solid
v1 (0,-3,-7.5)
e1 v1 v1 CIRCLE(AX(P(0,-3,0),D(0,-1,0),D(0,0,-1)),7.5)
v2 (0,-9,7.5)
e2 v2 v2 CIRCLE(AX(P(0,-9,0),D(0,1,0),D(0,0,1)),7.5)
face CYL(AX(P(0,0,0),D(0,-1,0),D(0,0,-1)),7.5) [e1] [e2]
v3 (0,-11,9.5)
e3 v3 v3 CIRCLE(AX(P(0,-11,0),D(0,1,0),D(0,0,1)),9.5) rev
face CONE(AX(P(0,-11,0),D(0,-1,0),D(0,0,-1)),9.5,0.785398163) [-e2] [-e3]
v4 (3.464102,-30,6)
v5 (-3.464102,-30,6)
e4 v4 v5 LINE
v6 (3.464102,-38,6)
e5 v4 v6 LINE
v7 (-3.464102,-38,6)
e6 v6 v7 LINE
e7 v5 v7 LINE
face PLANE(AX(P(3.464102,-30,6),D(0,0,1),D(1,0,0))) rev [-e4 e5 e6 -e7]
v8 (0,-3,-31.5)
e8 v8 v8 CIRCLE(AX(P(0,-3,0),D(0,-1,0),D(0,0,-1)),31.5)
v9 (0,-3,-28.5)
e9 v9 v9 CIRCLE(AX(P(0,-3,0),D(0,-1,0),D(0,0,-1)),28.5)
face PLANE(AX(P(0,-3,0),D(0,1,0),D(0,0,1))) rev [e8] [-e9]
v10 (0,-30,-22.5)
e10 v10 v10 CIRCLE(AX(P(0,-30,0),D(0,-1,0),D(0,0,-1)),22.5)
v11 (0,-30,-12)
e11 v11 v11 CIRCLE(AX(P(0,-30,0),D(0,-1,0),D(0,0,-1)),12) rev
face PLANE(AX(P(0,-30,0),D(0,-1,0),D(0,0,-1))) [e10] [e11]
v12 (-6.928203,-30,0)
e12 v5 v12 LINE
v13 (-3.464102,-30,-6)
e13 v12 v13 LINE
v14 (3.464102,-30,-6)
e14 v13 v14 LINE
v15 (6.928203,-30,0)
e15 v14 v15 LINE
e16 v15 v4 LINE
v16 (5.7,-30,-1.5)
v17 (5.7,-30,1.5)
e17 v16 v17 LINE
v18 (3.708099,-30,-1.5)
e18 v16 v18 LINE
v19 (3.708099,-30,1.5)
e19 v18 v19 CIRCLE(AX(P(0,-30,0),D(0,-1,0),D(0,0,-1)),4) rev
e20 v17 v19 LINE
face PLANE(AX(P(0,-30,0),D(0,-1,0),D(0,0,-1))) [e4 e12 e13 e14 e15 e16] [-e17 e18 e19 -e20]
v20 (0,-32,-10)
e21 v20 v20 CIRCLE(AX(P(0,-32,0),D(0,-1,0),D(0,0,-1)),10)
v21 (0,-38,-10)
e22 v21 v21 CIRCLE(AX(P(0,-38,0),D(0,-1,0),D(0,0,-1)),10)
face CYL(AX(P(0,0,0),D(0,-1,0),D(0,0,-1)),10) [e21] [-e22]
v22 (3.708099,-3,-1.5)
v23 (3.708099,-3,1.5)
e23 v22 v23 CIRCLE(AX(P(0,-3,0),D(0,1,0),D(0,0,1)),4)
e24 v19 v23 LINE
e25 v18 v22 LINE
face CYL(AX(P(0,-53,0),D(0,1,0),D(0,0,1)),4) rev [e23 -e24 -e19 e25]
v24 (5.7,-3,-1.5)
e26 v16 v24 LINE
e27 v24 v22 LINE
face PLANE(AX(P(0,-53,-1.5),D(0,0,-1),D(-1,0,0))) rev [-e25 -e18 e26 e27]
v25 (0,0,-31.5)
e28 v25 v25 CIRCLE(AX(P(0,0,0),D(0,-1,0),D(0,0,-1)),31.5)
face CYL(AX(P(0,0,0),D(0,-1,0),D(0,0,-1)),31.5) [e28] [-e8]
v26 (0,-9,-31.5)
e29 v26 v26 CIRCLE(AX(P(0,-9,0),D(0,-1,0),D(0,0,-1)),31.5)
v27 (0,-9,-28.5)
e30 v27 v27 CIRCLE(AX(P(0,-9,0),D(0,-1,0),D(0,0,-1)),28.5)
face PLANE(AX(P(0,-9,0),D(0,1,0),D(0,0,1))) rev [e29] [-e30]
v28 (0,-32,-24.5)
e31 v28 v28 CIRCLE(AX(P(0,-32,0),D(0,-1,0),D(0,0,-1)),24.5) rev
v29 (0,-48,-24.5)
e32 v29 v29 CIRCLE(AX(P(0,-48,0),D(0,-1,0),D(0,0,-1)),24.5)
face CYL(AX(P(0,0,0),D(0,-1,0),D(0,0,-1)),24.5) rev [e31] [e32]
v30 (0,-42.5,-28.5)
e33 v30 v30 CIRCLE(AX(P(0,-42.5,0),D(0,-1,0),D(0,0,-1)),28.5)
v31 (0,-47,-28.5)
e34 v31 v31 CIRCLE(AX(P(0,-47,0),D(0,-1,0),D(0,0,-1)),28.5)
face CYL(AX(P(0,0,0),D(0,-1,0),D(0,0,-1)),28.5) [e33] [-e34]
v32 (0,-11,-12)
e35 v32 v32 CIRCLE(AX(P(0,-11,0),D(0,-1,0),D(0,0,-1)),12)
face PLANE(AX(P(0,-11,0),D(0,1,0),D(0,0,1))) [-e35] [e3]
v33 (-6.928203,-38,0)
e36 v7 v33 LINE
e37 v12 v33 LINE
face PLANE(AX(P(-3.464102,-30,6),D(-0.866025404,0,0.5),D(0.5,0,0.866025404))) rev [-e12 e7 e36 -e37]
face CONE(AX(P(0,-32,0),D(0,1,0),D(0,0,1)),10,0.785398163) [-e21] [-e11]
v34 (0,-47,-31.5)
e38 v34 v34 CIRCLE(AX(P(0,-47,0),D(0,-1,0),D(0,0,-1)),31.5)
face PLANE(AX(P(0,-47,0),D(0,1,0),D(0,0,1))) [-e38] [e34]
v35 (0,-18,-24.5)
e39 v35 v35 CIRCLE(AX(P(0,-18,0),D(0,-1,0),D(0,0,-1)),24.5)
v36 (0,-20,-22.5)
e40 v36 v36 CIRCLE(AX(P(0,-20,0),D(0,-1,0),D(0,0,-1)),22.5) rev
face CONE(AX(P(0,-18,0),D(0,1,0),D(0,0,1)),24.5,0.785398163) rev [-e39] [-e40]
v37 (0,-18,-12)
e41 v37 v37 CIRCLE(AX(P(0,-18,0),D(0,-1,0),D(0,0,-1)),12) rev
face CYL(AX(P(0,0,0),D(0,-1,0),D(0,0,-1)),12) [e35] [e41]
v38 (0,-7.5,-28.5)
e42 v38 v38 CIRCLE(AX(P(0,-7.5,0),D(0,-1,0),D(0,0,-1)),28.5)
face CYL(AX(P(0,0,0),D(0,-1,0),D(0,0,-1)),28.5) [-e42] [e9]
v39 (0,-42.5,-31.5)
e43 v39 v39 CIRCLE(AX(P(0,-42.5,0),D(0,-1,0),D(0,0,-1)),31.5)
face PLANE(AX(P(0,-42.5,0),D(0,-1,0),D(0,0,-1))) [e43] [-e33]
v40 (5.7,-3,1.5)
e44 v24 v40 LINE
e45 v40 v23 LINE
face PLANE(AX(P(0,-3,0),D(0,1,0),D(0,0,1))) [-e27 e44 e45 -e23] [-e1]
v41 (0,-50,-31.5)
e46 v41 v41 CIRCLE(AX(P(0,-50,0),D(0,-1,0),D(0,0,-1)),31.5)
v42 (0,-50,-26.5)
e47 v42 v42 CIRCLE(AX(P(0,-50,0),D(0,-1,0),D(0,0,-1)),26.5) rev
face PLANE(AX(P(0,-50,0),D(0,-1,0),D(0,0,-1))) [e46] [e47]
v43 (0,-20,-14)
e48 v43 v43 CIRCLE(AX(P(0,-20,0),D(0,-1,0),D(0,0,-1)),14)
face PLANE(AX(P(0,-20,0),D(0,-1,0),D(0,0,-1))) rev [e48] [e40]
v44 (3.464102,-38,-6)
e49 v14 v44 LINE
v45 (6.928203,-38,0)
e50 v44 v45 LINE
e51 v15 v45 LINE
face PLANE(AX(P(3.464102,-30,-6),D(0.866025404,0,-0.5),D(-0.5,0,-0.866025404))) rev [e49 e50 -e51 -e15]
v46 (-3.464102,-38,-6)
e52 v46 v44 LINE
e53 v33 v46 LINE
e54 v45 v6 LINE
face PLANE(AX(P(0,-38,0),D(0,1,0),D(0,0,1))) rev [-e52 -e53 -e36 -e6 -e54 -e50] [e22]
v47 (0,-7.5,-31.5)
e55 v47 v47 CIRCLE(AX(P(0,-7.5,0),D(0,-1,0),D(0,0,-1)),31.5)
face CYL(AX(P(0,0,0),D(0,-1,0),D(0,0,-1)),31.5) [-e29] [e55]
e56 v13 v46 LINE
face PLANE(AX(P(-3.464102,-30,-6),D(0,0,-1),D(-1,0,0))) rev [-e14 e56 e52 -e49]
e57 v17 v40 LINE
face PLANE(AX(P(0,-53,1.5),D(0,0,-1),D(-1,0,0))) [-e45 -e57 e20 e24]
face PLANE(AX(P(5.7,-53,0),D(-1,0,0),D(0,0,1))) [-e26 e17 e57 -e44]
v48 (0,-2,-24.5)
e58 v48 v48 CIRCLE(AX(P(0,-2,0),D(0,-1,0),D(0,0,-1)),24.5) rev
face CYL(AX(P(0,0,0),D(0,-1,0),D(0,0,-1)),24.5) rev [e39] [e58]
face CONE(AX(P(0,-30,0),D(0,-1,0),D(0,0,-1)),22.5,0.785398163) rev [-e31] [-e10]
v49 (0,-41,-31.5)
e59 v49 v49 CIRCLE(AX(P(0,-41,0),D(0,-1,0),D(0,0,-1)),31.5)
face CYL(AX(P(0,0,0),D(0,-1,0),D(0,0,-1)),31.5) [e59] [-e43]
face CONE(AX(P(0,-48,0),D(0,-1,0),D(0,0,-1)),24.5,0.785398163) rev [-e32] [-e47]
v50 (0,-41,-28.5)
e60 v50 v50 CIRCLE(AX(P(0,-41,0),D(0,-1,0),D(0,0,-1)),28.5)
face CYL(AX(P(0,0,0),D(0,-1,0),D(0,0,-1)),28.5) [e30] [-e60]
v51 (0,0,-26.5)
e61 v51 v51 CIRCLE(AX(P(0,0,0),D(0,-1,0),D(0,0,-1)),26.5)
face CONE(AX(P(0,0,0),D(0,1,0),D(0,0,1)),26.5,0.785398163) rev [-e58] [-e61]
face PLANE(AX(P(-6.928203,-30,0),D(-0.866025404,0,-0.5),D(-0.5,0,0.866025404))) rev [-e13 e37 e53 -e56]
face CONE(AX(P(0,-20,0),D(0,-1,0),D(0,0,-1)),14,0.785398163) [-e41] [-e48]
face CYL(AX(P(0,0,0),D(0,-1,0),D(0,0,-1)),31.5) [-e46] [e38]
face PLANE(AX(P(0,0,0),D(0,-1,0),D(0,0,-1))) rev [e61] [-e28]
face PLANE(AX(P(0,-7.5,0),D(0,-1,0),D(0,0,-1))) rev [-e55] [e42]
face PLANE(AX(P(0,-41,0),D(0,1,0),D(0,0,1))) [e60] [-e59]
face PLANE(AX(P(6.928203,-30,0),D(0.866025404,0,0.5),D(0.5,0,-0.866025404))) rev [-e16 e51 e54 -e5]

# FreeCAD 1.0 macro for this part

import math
import FreeCAD as App
import Part
import Sketcher
from FreeCAD import Vector
Q = App.Units.Quantity


def edges_at(feature, points):
    """Names of the edges that pass closest to the given points."""
    edges = feature.Shape.Edges
    near = lambda p: min(range(len(edges)), key=lambda i: edges[i].distToShape(Part.Vertex(*p))[0])
    return sorted({f"Edge{near(p) + 1}" for p in points})


def add_polygon(sketch, points):
    """Adds a closed chain of lines whose ends are joined by coincident constraints."""
    first, n = sketch.GeometryCount, len(points)
    for a, b in zip(points, points[1:] + points[:1]):
        sketch.addGeometry(Part.LineSegment(App.Vector(*a, 0), App.Vector(*b, 0)), False)
    for i in range(n):
        sketch.addConstraint(Sketcher.Constraint("Coincident", first + i, 2, first + (i + 1) % n, 1))

doc = App.newDocument("Part")
body = doc.addObject("PartDesign::Body", "Body")

# Sketch on XY plane
sketch1 = body.newObject("Sketcher::SketchObject", "Sketch")
sketch1.AttachmentSupport = (doc.getObject("XY_Plane"), [""])
sketch1.MapMode = "FlatFace"
add_polygon(sketch1, [(7.5, -3), (0, -3), (0, -38), (10, -38), (10, -30), (24.5, -30), (24.5, -50), (31.5, -50), (31.5, -47), (28.5, -47), (28.5, -42.5), (31.5, -42.5), (31.5, -41), (28.5, -41), (28.5, -9), (31.5, -9), (31.5, -7.5), (28.5, -7.5), (28.5, -3), (31.5, -3), (31.5, 0), (24.5, 0), (24.5, -20), (12, -20), (12, -11), (7.5, -11)])  # lines 0-25
sketch1.addConstraint([
    Sketcher.Constraint("Horizontal", 0),
    Sketcher.Constraint("Vertical", 1),
    Sketcher.Constraint("Horizontal", 2),
    Sketcher.Constraint("Vertical", 3),
    Sketcher.Constraint("Horizontal", 4),
    Sketcher.Constraint("Vertical", 5),
    Sketcher.Constraint("Horizontal", 6),
    Sketcher.Constraint("Vertical", 7),
    Sketcher.Constraint("Horizontal", 8),
    Sketcher.Constraint("Vertical", 9),
    Sketcher.Constraint("Horizontal", 10),
    Sketcher.Constraint("Vertical", 11),
    Sketcher.Constraint("Horizontal", 12),
    Sketcher.Constraint("Vertical", 13),
    Sketcher.Constraint("Horizontal", 14),
    Sketcher.Constraint("Vertical", 15),
    Sketcher.Constraint("Horizontal", 16),
    Sketcher.Constraint("Vertical", 17),
    Sketcher.Constraint("Horizontal", 18),
    Sketcher.Constraint("Vertical", 19),
    Sketcher.Constraint("Horizontal", 20),
    Sketcher.Constraint("Vertical", 21),
    Sketcher.Constraint("Horizontal", 22),
    Sketcher.Constraint("Vertical", 23),
    Sketcher.Constraint("Horizontal", 24),
    Sketcher.Constraint("Vertical", 25),
    Sketcher.Constraint("PointOnObject", 0, 2, -2),
    Sketcher.Constraint("PointOnObject", 19, 2, -1),
    Sketcher.Constraint("Horizontal", 0, 2, 17, 2),
    Sketcher.Constraint("Vertical", 7, 2, 10, 2),
    Sketcher.Constraint("Vertical", 9, 2, 12, 2),
    Sketcher.Constraint("Vertical", 11, 2, 14, 2),
    Sketcher.Constraint("Vertical", 13, 2, 16, 2),
    Sketcher.Constraint("Vertical", 15, 2, 18, 2),
    Sketcher.Constraint("Vertical", 5, 2, 20, 2),
    Sketcher.Constraint("Equal", 18, 7),
    Sketcher.Constraint("Equal", 24, 9),
    Sketcher.Constraint("Equal", 11, 15),
    Sketcher.Constraint("Equal", 9, 17),
    Sketcher.Constraint("Equal", 7, 19),
    Sketcher.Constraint("Equal", 5, 21),
    Sketcher.Constraint("Equal", 3, 25),
    Sketcher.Constraint("DistanceX", 2, 1, 2, 2, 10.0),
    Sketcher.Constraint("DistanceX", 6, 1, 6, 2, 7.0),
    Sketcher.Constraint("DistanceX", 8, 2, 8, 1, 3.0),
    Sketcher.Constraint("DistanceY", 1, 2, 1, 1, 35.0),
    Sketcher.Constraint("DistanceY", 3, 1, 3, 2, 8.0),
    Sketcher.Constraint("DistanceY", 5, 2, 5, 1, 20.0),
    Sketcher.Constraint("DistanceY", 13, 1, 13, 2, 32.0),
    Sketcher.Constraint("DistanceX", 0, 2, 0, 1, 7.5),
    Sketcher.Constraint("DistanceX", 4, 1, 4, 2, 14.5),
    Sketcher.Constraint("DistanceX", 22, 2, 22, 1, 12.5),
])
revolution = body.newObject("PartDesign::Revolution", "Revolution")
revolution.Profile = sketch1
revolution.ReferenceAxis = (sketch1, ["V_Axis"])
revolution.Angle = 360

# Sketch on XZ plane
sketch2 = body.newObject("Sketcher::SketchObject", "Sketch001")
sketch2.AttachmentSupport = (doc.getObject("XZ_Plane"), [""])
sketch2.MapMode = "FlatFace"
sketch2.AttachmentOffset = App.Placement(Vector(0, 0, 3), App.Rotation())
sketch2.addGeometry([
    Part.LineSegment(Vector(5.7, -1.5, 0), Vector(3.7, -1.5, 0)),
    Part.ArcOfCircle(Part.Circle(Vector(0, 0, 0), Vector(0, 0, 1), 4), math.radians(22), math.radians(338)),
    Part.LineSegment(Vector(3.7, 1.5, 0), Vector(5.7, 1.5, 0)),
    Part.LineSegment(Vector(5.7, 1.5, 0), Vector(5.7, -1.5, 0)),
], False)
sketch2.addConstraint([
    Sketcher.Constraint("Coincident", 0, 2, 1, 2),
    Sketcher.Constraint("Coincident", 1, 1, 2, 1),
    Sketcher.Constraint("Coincident", 2, 2, 3, 1),
    Sketcher.Constraint("Coincident", 3, 2, 0, 1),
    Sketcher.Constraint("Horizontal", 0),
    Sketcher.Constraint("Horizontal", 2),
    Sketcher.Constraint("Vertical", 3),
    Sketcher.Constraint("Coincident", 1, 3, -1, 1),
    Sketcher.Constraint("Vertical", 0, 2, 1, 1),
    Sketcher.Constraint("Radius", 1, 4.0),
    Sketcher.Constraint("DistanceY", 3, 2, 3, 1, 3.0),
    Sketcher.Constraint("DistanceX", -1, 1, 2, 2, 5.7),
])
pocket1 = body.newObject("PartDesign::Pocket", "Pocket")
pocket1.Profile = sketch2
pocket1.Length = 50
pocket1.Reversed = True

# Sketch on XZ plane
sketch3 = body.newObject("Sketcher::SketchObject", "Sketch002")
sketch3.AttachmentSupport = (doc.getObject("XZ_Plane"), [""])
sketch3.MapMode = "FlatFace"
sketch3.AttachmentOffset = App.Placement(Vector(0, 0, 38), App.Rotation())
add_polygon(sketch3, [(7, 0), (3, 6), (-3, 6), (-7, 0), (-3, -6), (3, -6)])  # lines 0-5
sketch3.addConstraint([
    Sketcher.Constraint("Horizontal", 1),
    Sketcher.Constraint("Horizontal", 4),
    Sketcher.Constraint("Symmetric", 0, 2, 3, 2, -1, 1),
    Sketcher.Constraint("Symmetric", 2, 2, 5, 2, -1, 1),
    Sketcher.Constraint("PointOnObject", 2, 2, -1),
    Sketcher.Constraint("Parallel", 2, 5),
    Sketcher.Constraint("Vertical", 1, 2, 3, 2),
    Sketcher.Constraint("Angle", 0, Q("120 deg")),
    Sketcher.Constraint("DistanceY", -1, 1, 0, 2, 6.0),
    Sketcher.Constraint("DistanceX", -1, 1, 0, 2, 3.464102),
])
pocket2 = body.newObject("PartDesign::Pocket", "Pocket001")
pocket2.Profile = sketch3
pocket2.Length = 8
doc.recompute()

chamfer = body.newObject("PartDesign::Chamfer", "Chamfer")
chamfer.Base = (pocket2, edges_at(pocket2, [
    (0, -11, 7.5),
    (0, -20, 12),
    (0, -20, 24.5),
    (0, 0, 24.5),
    (0, -50, 24.5),
    (0, -30, 24.5),
    (0, -30, 10),
]))
chamfer.Size = 2

doc.recompute()
